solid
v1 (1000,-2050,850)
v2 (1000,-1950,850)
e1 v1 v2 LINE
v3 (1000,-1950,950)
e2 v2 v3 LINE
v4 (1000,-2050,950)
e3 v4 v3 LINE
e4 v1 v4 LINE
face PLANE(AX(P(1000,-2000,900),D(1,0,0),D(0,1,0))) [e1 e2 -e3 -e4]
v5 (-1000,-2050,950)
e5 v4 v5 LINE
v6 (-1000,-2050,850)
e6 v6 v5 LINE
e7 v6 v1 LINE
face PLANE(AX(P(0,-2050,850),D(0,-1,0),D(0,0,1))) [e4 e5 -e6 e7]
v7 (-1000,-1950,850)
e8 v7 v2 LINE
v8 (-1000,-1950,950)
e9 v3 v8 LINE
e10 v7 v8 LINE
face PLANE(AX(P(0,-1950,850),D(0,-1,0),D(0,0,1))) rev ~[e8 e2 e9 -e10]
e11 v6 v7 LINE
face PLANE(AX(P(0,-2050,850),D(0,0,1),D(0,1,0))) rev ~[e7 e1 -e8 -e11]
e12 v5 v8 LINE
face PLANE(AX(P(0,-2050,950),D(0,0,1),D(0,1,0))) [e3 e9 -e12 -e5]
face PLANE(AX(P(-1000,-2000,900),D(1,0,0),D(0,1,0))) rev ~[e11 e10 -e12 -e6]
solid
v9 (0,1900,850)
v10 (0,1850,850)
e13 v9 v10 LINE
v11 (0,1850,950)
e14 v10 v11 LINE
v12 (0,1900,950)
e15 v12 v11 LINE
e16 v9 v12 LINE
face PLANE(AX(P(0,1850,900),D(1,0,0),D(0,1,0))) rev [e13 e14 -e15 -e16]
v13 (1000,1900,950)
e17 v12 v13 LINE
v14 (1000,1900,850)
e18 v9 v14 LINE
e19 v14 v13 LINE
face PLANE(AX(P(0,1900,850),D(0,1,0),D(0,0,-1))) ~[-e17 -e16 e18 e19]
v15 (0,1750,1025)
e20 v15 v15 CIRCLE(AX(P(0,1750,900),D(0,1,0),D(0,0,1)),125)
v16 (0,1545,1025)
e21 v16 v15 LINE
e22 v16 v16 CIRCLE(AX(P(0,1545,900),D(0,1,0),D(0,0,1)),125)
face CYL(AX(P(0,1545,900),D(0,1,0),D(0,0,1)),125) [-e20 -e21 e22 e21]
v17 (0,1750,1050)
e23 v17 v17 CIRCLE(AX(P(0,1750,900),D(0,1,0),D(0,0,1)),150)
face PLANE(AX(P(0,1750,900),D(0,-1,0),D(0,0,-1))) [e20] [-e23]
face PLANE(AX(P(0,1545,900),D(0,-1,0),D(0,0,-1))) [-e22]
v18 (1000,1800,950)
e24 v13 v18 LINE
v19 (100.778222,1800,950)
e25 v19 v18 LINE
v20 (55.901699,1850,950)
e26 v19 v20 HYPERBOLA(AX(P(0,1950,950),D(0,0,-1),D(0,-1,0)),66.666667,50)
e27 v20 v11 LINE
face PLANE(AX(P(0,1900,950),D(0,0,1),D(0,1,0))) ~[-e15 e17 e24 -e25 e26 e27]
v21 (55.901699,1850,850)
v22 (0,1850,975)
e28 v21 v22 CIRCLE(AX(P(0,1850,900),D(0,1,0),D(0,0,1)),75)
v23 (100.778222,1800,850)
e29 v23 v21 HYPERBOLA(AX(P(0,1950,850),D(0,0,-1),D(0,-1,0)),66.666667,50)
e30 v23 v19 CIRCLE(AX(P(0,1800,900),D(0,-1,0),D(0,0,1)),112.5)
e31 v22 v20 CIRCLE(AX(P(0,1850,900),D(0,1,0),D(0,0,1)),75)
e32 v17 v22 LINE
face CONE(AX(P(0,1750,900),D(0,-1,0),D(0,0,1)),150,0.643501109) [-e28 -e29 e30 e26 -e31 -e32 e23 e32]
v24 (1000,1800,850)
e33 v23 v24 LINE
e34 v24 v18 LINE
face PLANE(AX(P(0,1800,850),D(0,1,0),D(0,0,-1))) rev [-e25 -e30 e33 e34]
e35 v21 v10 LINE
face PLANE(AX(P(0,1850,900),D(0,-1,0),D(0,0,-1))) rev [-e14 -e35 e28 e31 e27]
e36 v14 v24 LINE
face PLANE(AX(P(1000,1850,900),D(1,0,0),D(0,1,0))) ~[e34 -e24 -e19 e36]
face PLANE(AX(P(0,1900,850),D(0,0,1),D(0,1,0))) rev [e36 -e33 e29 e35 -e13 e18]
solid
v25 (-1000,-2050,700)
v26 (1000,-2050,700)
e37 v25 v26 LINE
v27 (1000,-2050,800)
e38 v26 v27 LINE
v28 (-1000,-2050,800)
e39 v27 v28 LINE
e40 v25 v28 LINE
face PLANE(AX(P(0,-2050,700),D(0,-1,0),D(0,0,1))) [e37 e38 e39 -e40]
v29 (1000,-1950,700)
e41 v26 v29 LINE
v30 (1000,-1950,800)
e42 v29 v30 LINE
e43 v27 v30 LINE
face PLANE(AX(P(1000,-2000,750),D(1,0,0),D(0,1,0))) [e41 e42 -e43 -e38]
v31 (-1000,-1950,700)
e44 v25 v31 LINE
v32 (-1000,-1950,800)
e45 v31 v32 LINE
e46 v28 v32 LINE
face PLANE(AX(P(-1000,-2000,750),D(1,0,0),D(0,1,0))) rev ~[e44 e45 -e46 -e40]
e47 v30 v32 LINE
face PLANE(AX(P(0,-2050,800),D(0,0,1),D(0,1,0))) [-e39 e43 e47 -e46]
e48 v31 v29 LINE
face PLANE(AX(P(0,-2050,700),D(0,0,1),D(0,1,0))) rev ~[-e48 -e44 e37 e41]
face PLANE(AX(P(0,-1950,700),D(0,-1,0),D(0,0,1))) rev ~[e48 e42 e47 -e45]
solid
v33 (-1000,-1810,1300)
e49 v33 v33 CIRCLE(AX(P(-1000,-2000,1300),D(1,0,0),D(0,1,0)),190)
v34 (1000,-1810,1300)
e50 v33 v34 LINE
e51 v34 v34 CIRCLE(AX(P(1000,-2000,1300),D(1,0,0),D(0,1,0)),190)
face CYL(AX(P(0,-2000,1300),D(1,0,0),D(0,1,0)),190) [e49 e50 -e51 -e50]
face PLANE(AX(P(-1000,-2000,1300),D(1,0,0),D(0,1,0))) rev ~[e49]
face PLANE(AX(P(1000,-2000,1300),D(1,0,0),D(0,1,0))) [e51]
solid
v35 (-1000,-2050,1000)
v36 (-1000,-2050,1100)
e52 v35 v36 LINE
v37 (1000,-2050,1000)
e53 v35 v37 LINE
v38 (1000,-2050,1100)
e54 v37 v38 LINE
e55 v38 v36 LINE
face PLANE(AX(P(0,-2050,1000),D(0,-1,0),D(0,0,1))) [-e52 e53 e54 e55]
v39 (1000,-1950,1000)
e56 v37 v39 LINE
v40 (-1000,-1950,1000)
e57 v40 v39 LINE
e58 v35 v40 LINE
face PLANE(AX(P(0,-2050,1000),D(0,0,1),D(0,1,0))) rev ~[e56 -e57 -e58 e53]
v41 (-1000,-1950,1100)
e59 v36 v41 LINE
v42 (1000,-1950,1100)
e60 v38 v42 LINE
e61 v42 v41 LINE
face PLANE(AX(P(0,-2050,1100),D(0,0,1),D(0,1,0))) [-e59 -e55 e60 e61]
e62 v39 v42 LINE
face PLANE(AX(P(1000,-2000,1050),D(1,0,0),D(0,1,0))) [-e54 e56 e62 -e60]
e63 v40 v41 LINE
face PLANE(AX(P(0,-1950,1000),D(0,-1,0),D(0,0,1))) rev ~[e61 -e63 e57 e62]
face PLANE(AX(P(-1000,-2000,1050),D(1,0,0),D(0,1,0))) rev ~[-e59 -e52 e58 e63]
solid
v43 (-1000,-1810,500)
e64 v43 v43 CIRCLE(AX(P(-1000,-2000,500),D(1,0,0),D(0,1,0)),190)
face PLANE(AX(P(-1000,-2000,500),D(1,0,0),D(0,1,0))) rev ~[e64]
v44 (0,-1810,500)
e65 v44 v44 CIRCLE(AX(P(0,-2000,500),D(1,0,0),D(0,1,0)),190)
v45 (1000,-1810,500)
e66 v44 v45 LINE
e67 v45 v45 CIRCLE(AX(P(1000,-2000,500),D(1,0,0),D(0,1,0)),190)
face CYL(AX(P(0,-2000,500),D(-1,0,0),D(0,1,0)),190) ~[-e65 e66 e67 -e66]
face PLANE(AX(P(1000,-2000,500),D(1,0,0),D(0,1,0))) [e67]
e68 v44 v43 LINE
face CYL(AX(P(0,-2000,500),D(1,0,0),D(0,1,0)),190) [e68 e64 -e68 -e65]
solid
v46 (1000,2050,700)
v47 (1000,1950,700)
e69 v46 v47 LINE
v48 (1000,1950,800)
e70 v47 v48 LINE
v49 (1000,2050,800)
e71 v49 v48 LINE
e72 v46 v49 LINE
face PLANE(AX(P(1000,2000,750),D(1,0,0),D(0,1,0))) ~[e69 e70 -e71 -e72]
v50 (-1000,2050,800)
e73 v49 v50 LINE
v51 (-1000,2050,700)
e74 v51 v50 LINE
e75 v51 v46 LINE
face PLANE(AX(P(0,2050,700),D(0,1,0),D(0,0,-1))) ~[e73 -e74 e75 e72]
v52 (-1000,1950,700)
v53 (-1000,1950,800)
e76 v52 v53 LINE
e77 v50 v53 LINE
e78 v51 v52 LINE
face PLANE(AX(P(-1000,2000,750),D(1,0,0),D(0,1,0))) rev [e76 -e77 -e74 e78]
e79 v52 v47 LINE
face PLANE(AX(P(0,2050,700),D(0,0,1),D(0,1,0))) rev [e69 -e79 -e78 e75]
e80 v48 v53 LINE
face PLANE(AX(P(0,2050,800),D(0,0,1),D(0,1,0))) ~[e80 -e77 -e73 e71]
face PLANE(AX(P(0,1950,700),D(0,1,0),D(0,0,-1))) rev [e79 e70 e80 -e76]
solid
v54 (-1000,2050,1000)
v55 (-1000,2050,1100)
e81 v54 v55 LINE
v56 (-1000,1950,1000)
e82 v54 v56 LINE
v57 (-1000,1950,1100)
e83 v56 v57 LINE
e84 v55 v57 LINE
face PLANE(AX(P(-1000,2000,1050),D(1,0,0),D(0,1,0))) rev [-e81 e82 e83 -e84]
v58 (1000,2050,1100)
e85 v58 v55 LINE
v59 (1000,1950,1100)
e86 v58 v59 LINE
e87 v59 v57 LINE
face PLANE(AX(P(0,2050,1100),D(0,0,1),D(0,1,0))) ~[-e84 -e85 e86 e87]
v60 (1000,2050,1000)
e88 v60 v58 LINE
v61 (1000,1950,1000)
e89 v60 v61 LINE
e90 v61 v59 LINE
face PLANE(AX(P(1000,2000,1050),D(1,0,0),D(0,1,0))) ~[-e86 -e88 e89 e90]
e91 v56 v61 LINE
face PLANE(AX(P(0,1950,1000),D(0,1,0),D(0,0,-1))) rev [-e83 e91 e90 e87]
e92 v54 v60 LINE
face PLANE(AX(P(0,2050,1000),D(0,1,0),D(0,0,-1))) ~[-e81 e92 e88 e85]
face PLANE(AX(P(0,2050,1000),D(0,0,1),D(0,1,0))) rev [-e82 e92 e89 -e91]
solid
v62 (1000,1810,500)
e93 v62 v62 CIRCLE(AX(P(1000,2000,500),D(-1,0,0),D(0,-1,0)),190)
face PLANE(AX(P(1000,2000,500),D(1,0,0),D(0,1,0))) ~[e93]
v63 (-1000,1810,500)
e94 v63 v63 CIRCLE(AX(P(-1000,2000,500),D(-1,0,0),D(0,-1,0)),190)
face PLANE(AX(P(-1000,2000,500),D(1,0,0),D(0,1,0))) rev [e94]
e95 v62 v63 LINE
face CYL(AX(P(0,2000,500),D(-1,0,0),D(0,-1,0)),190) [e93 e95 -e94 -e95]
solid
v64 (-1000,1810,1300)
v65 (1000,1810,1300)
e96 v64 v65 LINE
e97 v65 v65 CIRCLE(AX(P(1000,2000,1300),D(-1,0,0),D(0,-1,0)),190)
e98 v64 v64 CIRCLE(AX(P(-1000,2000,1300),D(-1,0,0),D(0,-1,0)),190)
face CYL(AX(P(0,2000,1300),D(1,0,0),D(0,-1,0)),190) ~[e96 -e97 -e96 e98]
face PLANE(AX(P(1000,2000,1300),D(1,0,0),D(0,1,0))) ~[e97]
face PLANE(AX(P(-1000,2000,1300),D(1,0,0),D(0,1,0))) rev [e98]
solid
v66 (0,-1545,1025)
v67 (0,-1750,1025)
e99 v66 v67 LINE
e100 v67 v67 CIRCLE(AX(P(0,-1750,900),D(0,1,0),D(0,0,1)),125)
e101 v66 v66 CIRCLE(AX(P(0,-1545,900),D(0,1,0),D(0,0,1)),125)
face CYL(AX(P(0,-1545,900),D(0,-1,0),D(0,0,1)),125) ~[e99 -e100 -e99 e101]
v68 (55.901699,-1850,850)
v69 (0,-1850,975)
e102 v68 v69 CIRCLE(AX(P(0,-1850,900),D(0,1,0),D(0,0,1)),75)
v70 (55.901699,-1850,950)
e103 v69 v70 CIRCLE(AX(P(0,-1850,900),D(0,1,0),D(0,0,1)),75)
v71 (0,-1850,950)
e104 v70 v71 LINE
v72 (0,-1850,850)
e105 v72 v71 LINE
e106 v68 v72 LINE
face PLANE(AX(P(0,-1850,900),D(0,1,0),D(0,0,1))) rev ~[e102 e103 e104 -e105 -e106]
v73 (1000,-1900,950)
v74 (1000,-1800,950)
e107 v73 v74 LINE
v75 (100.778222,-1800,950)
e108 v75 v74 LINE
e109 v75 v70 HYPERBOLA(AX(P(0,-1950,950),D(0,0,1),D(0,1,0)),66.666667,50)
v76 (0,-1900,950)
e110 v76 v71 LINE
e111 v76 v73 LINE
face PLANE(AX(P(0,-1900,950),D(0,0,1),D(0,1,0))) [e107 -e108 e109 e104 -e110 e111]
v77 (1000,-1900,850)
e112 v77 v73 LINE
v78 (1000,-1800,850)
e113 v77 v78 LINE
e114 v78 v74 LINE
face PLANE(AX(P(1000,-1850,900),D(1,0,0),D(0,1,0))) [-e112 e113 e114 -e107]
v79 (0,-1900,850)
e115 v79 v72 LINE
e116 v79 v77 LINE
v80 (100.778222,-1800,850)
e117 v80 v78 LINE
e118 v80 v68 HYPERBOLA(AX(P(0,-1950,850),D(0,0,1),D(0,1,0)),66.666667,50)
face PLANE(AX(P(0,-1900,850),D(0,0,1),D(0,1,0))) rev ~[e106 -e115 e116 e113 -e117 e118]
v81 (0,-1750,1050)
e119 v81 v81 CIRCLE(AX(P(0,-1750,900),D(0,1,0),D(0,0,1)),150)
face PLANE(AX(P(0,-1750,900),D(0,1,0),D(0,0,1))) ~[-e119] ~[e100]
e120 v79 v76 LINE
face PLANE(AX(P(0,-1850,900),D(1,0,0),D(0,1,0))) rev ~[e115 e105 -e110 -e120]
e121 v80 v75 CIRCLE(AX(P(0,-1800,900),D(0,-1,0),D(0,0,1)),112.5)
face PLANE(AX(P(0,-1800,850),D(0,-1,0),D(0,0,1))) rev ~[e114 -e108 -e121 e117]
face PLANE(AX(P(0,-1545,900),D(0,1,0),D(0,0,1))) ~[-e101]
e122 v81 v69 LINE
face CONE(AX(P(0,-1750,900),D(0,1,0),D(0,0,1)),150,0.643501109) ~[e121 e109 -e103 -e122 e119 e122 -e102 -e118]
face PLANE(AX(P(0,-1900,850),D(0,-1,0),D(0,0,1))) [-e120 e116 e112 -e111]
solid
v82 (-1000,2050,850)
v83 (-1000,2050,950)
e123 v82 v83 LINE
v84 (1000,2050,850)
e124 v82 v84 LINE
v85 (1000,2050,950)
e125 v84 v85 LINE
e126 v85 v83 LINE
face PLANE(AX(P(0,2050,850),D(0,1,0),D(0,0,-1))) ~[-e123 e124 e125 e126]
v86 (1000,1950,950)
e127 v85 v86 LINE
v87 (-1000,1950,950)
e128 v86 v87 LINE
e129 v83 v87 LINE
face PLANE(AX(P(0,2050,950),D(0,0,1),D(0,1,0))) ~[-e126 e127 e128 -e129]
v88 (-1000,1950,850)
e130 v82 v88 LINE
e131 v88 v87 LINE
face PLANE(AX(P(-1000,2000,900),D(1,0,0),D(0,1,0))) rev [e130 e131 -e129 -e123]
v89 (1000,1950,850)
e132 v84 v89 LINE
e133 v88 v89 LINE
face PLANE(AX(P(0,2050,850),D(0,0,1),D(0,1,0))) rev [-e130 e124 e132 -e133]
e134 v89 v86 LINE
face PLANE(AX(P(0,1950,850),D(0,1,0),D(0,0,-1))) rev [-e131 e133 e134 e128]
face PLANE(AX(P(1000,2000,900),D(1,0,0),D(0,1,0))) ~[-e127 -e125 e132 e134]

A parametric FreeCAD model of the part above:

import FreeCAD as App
import Part
import Sketcher

doc = App.newDocument("Part")
body = doc.addObject("PartDesign::Body", "Body")
body.AllowCompound = True

sketch1 = doc.addObject("Sketcher::SketchObject", "Sketch")
body.addObject(sketch1)
sketch1.AttachmentSupport = (doc.YZ_Plane, [""])
sketch1.MapMode = "FlatFace"
sketch1.addGeometry(Part.LineSegment(App.Vector(-2050, 950, 0), App.Vector(-2050, 850, 0)), False)
sketch1.addGeometry(Part.LineSegment(App.Vector(-2050, 850, 0), App.Vector(-1950, 850, 0)), False)
sketch1.addGeometry(Part.LineSegment(App.Vector(-1950, 850, 0), App.Vector(-1950, 950, 0)), False)
sketch1.addGeometry(Part.LineSegment(App.Vector(-1950, 950, 0), App.Vector(-2050, 950, 0)), False)
sketch1.addGeometry(Part.LineSegment(App.Vector(-2050, 800, 0), App.Vector(-2050, 700, 0)), False)
sketch1.addGeometry(Part.LineSegment(App.Vector(-2050, 700, 0), App.Vector(-1950, 700, 0)), False)
sketch1.addGeometry(Part.LineSegment(App.Vector(-1950, 700, 0), App.Vector(-1950, 800, 0)), False)
sketch1.addGeometry(Part.LineSegment(App.Vector(-1950, 800, 0), App.Vector(-2050, 800, 0)), False)
sketch1.addGeometry(Part.LineSegment(App.Vector(-2050, 1100, 0), App.Vector(-2050, 1000, 0)), False)
sketch1.addGeometry(Part.LineSegment(App.Vector(-2050, 1000, 0), App.Vector(-1950, 1000, 0)), False)
sketch1.addGeometry(Part.LineSegment(App.Vector(-1950, 1000, 0), App.Vector(-1950, 1100, 0)), False)
sketch1.addGeometry(Part.LineSegment(App.Vector(-1950, 1100, 0), App.Vector(-2050, 1100, 0)), False)
sketch1.addGeometry(Part.Circle(App.Vector(-2000, 500, 0), App.Vector(0, 0, 1), 190), False)
sketch1.addGeometry(Part.Circle(App.Vector(-2000, 1300, 0), App.Vector(0, 0, 1), 190), False)
sketch1.addConstraint(Sketcher.Constraint("Coincident", 0, 2, 1, 1))
sketch1.addConstraint(Sketcher.Constraint("Coincident", 1, 2, 2, 1))
sketch1.addConstraint(Sketcher.Constraint("Coincident", 2, 2, 3, 1))
sketch1.addConstraint(Sketcher.Constraint("Coincident", 3, 2, 0, 1))
sketch1.addConstraint(Sketcher.Constraint("Coincident", 4, 2, 5, 1))
sketch1.addConstraint(Sketcher.Constraint("Coincident", 5, 2, 6, 1))
sketch1.addConstraint(Sketcher.Constraint("Coincident", 6, 2, 7, 1))
sketch1.addConstraint(Sketcher.Constraint("Coincident", 7, 2, 4, 1))
sketch1.addConstraint(Sketcher.Constraint("Coincident", 8, 2, 9, 1))
sketch1.addConstraint(Sketcher.Constraint("Coincident", 9, 2, 10, 1))
sketch1.addConstraint(Sketcher.Constraint("Coincident", 10, 2, 11, 1))
sketch1.addConstraint(Sketcher.Constraint("Coincident", 11, 2, 8, 1))
sketch1.addConstraint(Sketcher.Constraint("Vertical", 0))
sketch1.addConstraint(Sketcher.Constraint("Horizontal", 1))
sketch1.addConstraint(Sketcher.Constraint("Vertical", 2))
sketch1.addConstraint(Sketcher.Constraint("Horizontal", 3))
sketch1.addConstraint(Sketcher.Constraint("Vertical", 4))
sketch1.addConstraint(Sketcher.Constraint("Horizontal", 5))
sketch1.addConstraint(Sketcher.Constraint("Vertical", 6))
sketch1.addConstraint(Sketcher.Constraint("Horizontal", 7))
sketch1.addConstraint(Sketcher.Constraint("Vertical", 8))
sketch1.addConstraint(Sketcher.Constraint("Horizontal", 9))
sketch1.addConstraint(Sketcher.Constraint("Vertical", 10))
sketch1.addConstraint(Sketcher.Constraint("Horizontal", 11))
sketch1.addConstraint(Sketcher.Constraint("Equal", 12, 13))
sketch1.addConstraint(Sketcher.Constraint("Vertical", 12, 3, 13, 3))
sketch1.addConstraint(Sketcher.Constraint("Vertical", 3, 2, 4, 2))
sketch1.addConstraint(Sketcher.Constraint("Vertical", 2, 2, 5, 2))
sketch1.addConstraint(Sketcher.Constraint("Vertical", 7, 2, 8, 2))
sketch1.addConstraint(Sketcher.Constraint("Vertical", 6, 2, 9, 2))
sketch1.addConstraint(Sketcher.Constraint("Equal", 11, 0))
sketch1.addConstraint(Sketcher.Constraint("Equal", 2, 4))
sketch1.addConstraint(Sketcher.Constraint("Equal", 6, 8))
sketch1.addConstraint(Sketcher.Constraint("Diameter", 12, 380.0))
sketch1.addConstraint(Sketcher.Constraint("DistanceX", 1, 1, 1, 2, 100.0))
sketch1.addConstraint(Sketcher.Constraint("DistanceX", 12, 3, -1, 1, 2000.0))
sketch1.addConstraint(Sketcher.Constraint("DistanceY", -1, 1, 12, 3, 500.0))
sketch1.addConstraint(Sketcher.Constraint("DistanceY", -1, 1, 13, 3, 1300.0))
sketch1.addConstraint(Sketcher.Constraint("DistanceX", 0, 2, -1, 1, 2050.0))
sketch1.addConstraint(Sketcher.Constraint("DistanceY", -1, 1, 0, 2, 850.0))
sketch1.addConstraint(Sketcher.Constraint("DistanceY", -1, 1, 4, 2, 700.0))
sketch1.addConstraint(Sketcher.Constraint("DistanceY", -1, 1, 8, 2, 1000.0))
pad1 = doc.addObject("PartDesign::Pad", "Pad")
body.addObject(pad1)
pad1.Profile = sketch1
pad1.Length = 2000
pad1.Midplane = True
body2 = doc.addObject("PartDesign::Body", "Body001")

sketch2 = doc.addObject("Sketcher::SketchObject", "Sketch001")
body2.addObject(sketch2)
sketch2.AttachmentSupport = (doc.getObject("YZ_Plane001"), [""])
sketch2.MapMode = "FlatFace"
sketch2.addGeometry(Part.LineSegment(App.Vector(-1900, 950, 0), App.Vector(-1900, 850, 0)), False)
sketch2.addGeometry(Part.LineSegment(App.Vector(-1900, 850, 0), App.Vector(-1800, 850, 0)), False)
sketch2.addGeometry(Part.LineSegment(App.Vector(-1800, 850, 0), App.Vector(-1800, 950, 0)), False)
sketch2.addGeometry(Part.LineSegment(App.Vector(-1800, 950, 0), App.Vector(-1900, 950, 0)), False)
sketch2.addConstraint(Sketcher.Constraint("Coincident", 0, 2, 1, 1))
sketch2.addConstraint(Sketcher.Constraint("Coincident", 1, 2, 2, 1))
sketch2.addConstraint(Sketcher.Constraint("Coincident", 2, 2, 3, 1))
sketch2.addConstraint(Sketcher.Constraint("Coincident", 3, 2, 0, 1))
sketch2.addConstraint(Sketcher.Constraint("Vertical", 0))
sketch2.addConstraint(Sketcher.Constraint("Horizontal", 1))
sketch2.addConstraint(Sketcher.Constraint("Vertical", 2))
sketch2.addConstraint(Sketcher.Constraint("Horizontal", 3))
sketch2.addConstraint(Sketcher.Constraint("Equal", 3, 0))
sketch2.addConstraint(Sketcher.Constraint("DistanceX", 1, 1, 1, 2, 100.0))
sketch2.addConstraint(Sketcher.Constraint("DistanceX", 0, 2, -1, 1, 1900.0))
sketch2.addConstraint(Sketcher.Constraint("DistanceY", -1, 1, 0, 2, 850.0))
pad2 = doc.addObject("PartDesign::Pad", "Pad001")
body2.addObject(pad2)
pad2.Profile = sketch2
pad2.Length = 1000

sketch3 = doc.addObject("Sketcher::SketchObject", "Sketch002")
body2.addObject(sketch3)
sketch3.AttachmentSupport = (doc.getObject("YZ_Plane001"), [""])
sketch3.MapMode = "FlatFace"
sketch3.addGeometry(Part.LineSegment(App.Vector(-1850, 975, 0), App.Vector(-1850, 900, 0)), False)
sketch3.addGeometry(Part.LineSegment(App.Vector(-1850, 900, 0), App.Vector(-1545, 900, 0)), False)
sketch3.addGeometry(Part.LineSegment(App.Vector(-1545, 900, 0), App.Vector(-1545, 1025, 0)), False)
sketch3.addGeometry(Part.LineSegment(App.Vector(-1545, 1025, 0), App.Vector(-1750, 1025, 0)), False)
sketch3.addGeometry(Part.LineSegment(App.Vector(-1750, 1025, 0), App.Vector(-1750, 1050, 0)), False)
sketch3.addGeometry(Part.LineSegment(App.Vector(-1750, 1050, 0), App.Vector(-1850, 975, 0)), False)
sketch3.addGeometry(Part.LineSegment(App.Vector(-1850, 900, 0), App.Vector(-1545, 900, 0)), True)
sketch3.addConstraint(Sketcher.Constraint("Coincident", 0, 2, 1, 1))
sketch3.addConstraint(Sketcher.Constraint("Coincident", 1, 2, 2, 1))
sketch3.addConstraint(Sketcher.Constraint("Coincident", 2, 2, 3, 1))
sketch3.addConstraint(Sketcher.Constraint("Coincident", 3, 2, 4, 1))
sketch3.addConstraint(Sketcher.Constraint("Coincident", 4, 2, 5, 1))
sketch3.addConstraint(Sketcher.Constraint("Coincident", 5, 2, 0, 1))
sketch3.addConstraint(Sketcher.Constraint("Vertical", 0))
sketch3.addConstraint(Sketcher.Constraint("Horizontal", 1))
sketch3.addConstraint(Sketcher.Constraint("Vertical", 2))
sketch3.addConstraint(Sketcher.Constraint("Horizontal", 3))
sketch3.addConstraint(Sketcher.Constraint("Vertical", 4))
sketch3.addConstraint(Sketcher.Constraint("Horizontal", 6))
sketch3.addConstraint(Sketcher.Constraint("Coincident", 6, 1, 0, 2))
sketch3.addConstraint(Sketcher.Constraint("Vertical", 2, 2, 6, 2))
sketch3.addConstraint(Sketcher.Constraint("DistanceX", 1, 1, 1, 2, 305.0))
sketch3.addConstraint(Sketcher.Constraint("DistanceX", 3, 2, 3, 1, 205.0))
sketch3.addConstraint(Sketcher.Constraint("DistanceY", 0, 2, 0, 1, 75.0))
sketch3.addConstraint(Sketcher.Constraint("DistanceY", 2, 1, 2, 2, 125.0))
sketch3.addConstraint(Sketcher.Constraint("DistanceY", 4, 1, 4, 2, 25.0))
sketch3.addConstraint(Sketcher.Constraint("DistanceX", 0, 2, -1, 1, 1850.0))
sketch3.addConstraint(Sketcher.Constraint("DistanceY", -1, 1, 0, 2, 900.0))
revolution = doc.addObject("PartDesign::Revolution", "Revolution")
body2.addObject(revolution)
revolution.Profile = sketch3
revolution.ReferenceAxis = (sketch3, ["Axis0"])
revolution.Angle = 360
body3 = doc.addObject("PartDesign::Body", "Body002")
doc.recompute()

mirroring = doc.addObject("Part::Mirroring", "Mirroring")
mirroring.Source = body2
mirroring.Base = App.Vector(0, 0, 0)
mirroring.Normal = App.Vector(0, -1, 0)
body3.BaseFeature = mirroring
doc.recompute()
body4 = doc.addObject("PartDesign::Body", "Body003")
body4.AllowCompound = True
doc.recompute()

mirroring2 = doc.addObject("Part::Mirroring", "Mirroring001")
mirroring2.Source = body
mirroring2.Base = App.Vector(0, 0, 0)
mirroring2.Normal = App.Vector(0, -1, 0)
body4.BaseFeature = mirroring2
doc.recompute()
mirroring.Visibility = False
mirroring2.Visibility = False

doc.recompute()
